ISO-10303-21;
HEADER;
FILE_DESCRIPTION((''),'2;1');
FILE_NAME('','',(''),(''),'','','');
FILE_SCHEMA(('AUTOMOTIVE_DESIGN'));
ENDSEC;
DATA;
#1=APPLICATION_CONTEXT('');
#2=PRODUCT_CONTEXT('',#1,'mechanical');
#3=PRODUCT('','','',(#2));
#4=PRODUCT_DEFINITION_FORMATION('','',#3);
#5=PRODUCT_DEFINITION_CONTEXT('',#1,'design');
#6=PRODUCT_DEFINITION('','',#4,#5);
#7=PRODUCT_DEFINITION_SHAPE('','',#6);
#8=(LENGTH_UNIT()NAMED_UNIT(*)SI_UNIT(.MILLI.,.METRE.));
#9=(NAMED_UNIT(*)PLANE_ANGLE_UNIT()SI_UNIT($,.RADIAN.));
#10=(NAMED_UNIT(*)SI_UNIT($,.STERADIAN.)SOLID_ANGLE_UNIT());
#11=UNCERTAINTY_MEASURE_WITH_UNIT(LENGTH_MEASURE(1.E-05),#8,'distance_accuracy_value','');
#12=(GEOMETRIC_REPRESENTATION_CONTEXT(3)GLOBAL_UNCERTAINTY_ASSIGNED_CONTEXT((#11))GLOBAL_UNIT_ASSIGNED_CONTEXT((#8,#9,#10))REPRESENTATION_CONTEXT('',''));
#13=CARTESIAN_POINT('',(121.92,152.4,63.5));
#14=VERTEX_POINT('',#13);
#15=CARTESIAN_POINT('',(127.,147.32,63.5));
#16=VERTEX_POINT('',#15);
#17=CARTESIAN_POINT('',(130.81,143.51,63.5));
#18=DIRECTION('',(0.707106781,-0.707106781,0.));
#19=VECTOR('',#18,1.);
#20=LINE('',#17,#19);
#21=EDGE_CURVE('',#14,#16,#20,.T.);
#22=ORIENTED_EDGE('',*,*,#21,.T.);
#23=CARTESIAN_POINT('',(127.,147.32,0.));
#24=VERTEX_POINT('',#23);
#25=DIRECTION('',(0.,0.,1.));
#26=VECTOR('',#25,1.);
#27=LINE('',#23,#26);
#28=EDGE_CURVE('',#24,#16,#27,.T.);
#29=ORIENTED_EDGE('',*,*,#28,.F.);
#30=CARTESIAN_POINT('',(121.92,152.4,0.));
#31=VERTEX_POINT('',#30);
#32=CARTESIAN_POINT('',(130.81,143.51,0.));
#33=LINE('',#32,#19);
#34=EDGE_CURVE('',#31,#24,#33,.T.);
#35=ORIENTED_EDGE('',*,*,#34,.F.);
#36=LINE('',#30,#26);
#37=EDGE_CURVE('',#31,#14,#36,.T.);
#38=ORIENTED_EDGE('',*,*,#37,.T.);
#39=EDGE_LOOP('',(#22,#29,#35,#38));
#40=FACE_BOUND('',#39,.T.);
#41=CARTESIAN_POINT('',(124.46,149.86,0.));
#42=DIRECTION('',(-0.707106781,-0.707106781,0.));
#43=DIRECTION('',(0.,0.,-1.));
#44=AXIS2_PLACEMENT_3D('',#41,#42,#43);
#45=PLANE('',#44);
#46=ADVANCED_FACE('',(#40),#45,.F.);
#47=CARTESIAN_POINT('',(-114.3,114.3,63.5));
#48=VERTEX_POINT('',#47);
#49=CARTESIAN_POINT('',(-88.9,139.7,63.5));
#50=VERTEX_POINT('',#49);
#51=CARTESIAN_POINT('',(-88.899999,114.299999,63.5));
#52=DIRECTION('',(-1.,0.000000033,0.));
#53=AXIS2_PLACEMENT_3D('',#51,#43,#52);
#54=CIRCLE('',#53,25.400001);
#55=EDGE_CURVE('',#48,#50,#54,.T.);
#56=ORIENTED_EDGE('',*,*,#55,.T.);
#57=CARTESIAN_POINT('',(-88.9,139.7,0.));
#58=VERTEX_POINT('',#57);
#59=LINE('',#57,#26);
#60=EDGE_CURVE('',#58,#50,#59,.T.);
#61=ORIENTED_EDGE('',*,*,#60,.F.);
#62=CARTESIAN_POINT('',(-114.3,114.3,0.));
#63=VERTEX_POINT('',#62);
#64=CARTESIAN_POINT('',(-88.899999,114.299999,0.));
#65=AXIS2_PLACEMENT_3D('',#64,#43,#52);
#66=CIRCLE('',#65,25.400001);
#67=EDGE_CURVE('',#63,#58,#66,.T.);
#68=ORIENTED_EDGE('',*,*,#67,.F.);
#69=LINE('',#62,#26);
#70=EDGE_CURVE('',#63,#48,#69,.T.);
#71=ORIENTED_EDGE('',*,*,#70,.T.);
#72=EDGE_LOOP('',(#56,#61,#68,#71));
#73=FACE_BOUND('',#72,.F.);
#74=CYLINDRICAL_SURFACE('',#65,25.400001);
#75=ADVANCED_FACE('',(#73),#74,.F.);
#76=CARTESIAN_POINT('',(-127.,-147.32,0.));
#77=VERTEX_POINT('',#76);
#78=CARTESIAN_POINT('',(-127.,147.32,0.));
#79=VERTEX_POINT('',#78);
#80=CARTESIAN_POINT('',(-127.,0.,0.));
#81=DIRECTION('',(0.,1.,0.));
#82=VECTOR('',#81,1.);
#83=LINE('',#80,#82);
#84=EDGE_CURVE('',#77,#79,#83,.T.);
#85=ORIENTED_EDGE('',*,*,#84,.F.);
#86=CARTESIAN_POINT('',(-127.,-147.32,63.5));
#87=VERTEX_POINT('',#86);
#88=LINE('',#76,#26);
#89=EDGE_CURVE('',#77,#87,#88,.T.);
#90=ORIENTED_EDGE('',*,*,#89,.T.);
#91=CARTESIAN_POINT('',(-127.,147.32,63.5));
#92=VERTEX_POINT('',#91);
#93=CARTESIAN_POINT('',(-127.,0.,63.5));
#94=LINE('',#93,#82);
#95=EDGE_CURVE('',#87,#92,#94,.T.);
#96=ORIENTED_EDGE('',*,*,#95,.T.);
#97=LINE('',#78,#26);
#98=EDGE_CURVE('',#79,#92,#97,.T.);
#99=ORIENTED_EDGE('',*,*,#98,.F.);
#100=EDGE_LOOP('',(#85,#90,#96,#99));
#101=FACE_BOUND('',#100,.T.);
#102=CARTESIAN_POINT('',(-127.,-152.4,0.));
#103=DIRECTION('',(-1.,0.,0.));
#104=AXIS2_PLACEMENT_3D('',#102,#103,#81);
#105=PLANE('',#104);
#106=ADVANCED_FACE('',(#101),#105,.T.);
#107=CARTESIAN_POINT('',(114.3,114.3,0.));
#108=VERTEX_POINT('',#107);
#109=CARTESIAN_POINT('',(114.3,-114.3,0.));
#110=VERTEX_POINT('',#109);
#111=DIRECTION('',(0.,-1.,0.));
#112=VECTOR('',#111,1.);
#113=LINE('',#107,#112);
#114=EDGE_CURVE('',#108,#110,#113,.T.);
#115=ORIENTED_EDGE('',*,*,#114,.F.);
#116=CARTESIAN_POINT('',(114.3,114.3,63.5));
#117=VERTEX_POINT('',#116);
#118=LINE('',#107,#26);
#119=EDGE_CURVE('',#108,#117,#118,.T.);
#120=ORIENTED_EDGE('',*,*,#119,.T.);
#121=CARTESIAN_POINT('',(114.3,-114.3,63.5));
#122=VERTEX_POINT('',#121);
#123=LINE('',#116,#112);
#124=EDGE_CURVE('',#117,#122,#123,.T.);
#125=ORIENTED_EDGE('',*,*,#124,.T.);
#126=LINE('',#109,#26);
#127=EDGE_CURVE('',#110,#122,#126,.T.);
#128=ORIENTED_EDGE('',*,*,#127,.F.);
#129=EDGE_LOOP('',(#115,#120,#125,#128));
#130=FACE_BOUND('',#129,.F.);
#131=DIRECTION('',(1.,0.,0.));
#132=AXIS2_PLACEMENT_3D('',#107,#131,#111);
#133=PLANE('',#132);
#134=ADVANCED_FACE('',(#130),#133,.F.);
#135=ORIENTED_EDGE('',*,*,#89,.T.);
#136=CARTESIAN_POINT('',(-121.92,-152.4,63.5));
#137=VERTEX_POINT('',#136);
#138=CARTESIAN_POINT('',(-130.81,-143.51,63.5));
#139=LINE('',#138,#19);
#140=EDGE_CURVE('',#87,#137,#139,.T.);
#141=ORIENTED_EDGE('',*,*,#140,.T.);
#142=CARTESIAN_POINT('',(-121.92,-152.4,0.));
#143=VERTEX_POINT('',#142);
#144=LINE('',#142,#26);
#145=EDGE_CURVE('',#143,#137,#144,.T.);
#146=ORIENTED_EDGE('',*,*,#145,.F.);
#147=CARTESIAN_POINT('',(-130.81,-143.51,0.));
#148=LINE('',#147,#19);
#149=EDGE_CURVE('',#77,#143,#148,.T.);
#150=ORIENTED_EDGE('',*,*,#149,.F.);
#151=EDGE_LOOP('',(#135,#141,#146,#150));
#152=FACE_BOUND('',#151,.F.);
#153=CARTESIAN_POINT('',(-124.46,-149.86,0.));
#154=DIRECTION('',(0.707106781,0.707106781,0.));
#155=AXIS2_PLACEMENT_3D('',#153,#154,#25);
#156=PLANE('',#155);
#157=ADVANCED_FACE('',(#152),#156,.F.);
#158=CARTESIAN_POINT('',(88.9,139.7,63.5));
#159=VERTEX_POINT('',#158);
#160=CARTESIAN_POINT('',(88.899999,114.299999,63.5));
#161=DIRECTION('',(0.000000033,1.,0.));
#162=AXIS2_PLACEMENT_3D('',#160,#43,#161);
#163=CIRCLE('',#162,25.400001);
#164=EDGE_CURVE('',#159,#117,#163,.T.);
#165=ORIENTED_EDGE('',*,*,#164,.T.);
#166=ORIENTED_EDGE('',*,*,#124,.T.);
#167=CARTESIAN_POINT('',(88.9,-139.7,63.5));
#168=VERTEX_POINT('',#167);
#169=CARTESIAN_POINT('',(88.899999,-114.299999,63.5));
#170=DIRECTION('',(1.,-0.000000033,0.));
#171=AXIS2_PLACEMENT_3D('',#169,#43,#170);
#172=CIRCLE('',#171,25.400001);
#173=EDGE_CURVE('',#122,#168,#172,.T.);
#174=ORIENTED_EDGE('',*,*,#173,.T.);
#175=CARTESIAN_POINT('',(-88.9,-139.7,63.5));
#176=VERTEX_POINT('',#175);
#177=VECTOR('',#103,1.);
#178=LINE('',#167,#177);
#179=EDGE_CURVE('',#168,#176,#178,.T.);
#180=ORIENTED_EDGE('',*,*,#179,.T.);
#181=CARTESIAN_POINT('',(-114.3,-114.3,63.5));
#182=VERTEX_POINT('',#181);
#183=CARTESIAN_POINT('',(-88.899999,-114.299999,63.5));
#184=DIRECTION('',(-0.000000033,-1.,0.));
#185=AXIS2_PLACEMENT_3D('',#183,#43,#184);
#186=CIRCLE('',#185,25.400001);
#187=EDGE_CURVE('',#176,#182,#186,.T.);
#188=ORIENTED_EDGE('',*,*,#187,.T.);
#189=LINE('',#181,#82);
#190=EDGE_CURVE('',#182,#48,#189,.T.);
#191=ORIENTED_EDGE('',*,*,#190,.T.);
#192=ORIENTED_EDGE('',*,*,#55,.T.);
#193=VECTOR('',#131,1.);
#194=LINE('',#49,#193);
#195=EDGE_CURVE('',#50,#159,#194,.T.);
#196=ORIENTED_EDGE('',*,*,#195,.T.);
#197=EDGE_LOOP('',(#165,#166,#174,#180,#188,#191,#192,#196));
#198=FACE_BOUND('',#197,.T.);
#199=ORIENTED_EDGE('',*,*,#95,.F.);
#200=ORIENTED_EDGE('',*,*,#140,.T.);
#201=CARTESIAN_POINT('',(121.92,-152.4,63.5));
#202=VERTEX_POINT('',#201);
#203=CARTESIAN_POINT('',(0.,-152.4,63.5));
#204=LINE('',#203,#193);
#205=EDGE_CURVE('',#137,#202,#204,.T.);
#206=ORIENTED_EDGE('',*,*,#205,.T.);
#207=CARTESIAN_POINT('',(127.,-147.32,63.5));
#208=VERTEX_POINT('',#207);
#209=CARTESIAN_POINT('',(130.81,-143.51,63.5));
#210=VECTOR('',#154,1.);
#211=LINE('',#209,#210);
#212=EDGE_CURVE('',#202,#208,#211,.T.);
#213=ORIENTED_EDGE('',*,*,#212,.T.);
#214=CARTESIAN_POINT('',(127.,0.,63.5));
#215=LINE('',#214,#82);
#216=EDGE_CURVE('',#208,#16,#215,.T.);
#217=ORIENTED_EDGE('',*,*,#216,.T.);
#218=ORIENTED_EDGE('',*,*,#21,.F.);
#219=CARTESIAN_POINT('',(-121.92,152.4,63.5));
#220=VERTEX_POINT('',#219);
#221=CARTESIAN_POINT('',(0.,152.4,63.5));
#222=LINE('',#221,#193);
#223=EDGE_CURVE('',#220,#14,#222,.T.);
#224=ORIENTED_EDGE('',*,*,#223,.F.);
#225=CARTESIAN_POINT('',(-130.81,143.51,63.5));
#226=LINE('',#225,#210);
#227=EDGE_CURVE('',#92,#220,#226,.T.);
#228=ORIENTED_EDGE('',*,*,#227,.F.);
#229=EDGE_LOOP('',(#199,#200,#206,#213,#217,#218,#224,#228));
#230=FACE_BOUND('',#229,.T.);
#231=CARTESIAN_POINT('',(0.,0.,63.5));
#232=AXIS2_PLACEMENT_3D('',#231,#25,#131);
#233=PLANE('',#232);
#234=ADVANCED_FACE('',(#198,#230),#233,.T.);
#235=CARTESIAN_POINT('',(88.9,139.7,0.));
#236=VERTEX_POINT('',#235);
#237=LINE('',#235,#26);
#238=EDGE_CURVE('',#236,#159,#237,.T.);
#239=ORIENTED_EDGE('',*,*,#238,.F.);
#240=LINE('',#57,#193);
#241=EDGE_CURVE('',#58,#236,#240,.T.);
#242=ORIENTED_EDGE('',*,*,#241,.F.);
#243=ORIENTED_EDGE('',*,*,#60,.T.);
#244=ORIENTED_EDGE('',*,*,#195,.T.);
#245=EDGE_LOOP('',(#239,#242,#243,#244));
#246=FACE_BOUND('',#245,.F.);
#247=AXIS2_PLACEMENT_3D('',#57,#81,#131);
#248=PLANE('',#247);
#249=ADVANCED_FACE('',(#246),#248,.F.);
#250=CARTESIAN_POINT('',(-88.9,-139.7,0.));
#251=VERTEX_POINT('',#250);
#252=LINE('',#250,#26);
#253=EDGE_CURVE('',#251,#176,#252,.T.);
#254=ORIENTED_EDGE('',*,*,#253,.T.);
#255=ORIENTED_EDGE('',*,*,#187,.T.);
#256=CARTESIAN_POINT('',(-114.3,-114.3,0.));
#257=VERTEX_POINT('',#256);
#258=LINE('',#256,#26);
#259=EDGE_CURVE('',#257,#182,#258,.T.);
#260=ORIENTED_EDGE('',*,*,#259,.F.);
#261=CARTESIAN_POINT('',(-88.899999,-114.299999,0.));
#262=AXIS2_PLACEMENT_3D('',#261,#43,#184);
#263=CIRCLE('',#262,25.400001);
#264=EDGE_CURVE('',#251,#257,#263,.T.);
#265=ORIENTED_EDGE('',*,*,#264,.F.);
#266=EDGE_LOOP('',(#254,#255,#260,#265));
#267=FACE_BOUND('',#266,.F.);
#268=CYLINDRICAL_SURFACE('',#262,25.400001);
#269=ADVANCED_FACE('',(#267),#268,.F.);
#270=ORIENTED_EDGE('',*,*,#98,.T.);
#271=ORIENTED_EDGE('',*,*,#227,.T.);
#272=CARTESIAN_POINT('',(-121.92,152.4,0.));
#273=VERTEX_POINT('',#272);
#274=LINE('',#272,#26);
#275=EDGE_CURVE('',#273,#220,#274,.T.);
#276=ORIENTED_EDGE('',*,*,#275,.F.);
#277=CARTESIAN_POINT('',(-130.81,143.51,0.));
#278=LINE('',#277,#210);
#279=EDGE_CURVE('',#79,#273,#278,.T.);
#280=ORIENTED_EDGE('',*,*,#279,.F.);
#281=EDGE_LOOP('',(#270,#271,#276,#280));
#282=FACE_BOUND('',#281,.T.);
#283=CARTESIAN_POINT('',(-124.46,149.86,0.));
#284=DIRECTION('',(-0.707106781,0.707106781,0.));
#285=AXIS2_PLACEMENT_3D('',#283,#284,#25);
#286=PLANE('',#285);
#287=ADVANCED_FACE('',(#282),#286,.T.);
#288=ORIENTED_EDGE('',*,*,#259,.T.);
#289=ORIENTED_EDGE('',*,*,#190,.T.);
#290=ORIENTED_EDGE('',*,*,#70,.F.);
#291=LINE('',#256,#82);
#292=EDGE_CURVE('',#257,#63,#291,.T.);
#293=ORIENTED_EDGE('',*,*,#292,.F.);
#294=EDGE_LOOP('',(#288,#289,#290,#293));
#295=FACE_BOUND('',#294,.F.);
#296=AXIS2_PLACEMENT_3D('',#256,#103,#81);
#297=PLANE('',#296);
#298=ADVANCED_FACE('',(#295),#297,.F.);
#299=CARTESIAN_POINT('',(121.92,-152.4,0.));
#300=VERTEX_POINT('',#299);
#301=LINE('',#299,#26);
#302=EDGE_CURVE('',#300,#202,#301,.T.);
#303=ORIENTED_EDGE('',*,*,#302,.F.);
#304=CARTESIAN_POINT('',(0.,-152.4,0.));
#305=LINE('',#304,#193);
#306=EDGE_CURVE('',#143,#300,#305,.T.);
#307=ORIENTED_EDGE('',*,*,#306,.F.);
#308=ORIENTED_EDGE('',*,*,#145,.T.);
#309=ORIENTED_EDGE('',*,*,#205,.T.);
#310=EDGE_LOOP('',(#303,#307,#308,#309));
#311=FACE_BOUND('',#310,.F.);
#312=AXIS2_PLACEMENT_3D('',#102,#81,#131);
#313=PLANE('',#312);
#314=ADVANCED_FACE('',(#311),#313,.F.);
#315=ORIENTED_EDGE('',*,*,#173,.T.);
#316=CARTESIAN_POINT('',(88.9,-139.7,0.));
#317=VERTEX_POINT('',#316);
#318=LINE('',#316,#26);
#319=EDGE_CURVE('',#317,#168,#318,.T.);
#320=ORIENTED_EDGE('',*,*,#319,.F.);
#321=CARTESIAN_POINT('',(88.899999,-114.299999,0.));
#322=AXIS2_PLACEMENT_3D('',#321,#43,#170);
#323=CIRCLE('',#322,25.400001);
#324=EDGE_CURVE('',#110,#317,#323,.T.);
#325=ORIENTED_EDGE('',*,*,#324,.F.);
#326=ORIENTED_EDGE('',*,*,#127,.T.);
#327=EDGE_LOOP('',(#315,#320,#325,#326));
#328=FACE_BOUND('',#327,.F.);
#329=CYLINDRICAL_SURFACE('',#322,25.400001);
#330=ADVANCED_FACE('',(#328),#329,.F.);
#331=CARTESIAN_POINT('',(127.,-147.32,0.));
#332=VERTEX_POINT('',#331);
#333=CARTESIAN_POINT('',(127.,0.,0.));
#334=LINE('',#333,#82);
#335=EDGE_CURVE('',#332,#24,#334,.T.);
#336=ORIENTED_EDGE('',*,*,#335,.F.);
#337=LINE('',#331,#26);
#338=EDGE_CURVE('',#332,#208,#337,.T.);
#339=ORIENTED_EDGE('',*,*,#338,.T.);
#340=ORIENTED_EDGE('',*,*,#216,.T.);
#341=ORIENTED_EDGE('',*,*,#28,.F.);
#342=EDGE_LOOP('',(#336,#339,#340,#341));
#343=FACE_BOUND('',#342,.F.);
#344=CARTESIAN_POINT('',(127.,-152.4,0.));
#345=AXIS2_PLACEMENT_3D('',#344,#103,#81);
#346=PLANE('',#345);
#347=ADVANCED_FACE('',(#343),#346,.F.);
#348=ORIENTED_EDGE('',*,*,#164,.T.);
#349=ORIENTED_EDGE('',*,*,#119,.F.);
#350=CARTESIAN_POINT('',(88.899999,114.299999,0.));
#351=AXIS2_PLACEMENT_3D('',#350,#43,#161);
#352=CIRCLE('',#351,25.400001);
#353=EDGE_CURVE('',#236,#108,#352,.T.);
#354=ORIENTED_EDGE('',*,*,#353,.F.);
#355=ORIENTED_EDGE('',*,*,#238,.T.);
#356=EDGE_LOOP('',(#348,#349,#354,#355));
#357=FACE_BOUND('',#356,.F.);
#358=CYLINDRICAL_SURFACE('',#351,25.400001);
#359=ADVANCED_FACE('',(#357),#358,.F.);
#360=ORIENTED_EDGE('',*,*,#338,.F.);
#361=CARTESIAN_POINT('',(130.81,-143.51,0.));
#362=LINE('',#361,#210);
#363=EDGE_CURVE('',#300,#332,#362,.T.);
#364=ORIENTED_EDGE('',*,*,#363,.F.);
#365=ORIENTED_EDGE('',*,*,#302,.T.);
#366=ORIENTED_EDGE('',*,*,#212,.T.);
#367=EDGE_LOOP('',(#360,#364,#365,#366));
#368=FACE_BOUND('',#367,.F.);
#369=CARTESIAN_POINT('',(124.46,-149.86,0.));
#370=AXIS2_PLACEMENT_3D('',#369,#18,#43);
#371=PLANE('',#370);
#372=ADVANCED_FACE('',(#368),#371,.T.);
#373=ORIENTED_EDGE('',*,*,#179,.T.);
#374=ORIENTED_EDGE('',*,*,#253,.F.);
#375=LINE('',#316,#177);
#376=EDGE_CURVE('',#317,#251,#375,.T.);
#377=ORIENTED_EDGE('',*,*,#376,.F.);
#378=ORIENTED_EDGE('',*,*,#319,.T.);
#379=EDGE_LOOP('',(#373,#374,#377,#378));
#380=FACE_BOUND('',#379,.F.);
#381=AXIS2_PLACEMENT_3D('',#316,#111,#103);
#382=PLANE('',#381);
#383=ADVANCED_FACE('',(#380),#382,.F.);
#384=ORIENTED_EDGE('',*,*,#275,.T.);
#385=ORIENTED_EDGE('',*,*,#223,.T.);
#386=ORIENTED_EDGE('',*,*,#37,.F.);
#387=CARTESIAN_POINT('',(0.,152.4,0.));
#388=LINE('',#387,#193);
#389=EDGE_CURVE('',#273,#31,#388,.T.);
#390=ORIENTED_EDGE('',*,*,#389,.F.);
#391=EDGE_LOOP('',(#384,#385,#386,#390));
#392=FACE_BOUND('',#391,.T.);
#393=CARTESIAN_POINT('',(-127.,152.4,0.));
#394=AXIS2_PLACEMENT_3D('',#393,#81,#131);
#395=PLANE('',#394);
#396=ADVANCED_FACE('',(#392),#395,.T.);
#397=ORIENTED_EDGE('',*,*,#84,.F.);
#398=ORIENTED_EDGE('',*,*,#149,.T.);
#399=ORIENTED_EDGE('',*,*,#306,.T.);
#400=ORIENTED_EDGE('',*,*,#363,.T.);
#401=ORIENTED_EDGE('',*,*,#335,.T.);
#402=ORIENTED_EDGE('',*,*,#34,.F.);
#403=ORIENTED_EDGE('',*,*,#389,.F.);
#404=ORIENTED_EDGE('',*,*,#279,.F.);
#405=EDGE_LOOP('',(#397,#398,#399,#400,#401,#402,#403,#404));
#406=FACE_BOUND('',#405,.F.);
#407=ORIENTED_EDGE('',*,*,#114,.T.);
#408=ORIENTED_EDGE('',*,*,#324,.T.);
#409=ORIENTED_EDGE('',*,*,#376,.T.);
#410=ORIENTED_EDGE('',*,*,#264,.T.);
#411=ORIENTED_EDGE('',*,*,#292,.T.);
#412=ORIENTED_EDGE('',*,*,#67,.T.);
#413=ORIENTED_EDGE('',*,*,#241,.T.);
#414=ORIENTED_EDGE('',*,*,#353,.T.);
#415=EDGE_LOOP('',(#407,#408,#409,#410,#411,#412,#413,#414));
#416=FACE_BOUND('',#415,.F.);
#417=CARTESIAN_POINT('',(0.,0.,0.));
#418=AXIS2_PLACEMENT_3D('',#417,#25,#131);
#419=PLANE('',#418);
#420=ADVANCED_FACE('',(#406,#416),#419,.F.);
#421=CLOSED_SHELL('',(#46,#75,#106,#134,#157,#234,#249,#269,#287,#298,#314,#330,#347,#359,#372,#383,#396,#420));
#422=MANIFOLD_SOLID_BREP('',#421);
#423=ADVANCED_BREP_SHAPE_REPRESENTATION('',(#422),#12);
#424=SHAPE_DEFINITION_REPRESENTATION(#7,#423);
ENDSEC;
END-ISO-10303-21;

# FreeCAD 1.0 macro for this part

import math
import FreeCAD as App
import Part
import Sketcher
Q = App.Units.Quantity


def edges_at(feature, points):
    """Names of the edges that pass closest to the given points."""
    edges = feature.Shape.Edges
    near = lambda p: min(range(len(edges)), key=lambda i: edges[i].distToShape(Part.Vertex(*p))[0])
    return sorted({f"Edge{near(p) + 1}" for p in points})


def add_polygon(sketch, points):
    """Adds a closed chain of lines whose ends are joined by coincident constraints."""
    first, n = sketch.GeometryCount, len(points)
    for a, b in zip(points, points[1:] + points[:1]):
        sketch.addGeometry(Part.LineSegment(App.Vector(*a, 0), App.Vector(*b, 0)), False)
    for i in range(n):
        sketch.addConstraint(Sketcher.Constraint("Coincident", first + i, 2, first + (i + 1) % n, 1))

doc = App.newDocument("Part")
body = doc.addObject("PartDesign::Body", "Body")

# Sketch on XY plane
sketch1 = doc.addObject("Sketcher::SketchObject", "Sketch")
body.addObject(sketch1)
sketch1.AttachmentSupport = (doc.XY_Plane, [""])
sketch1.MapMode = "FlatFace"
add_polygon(sketch1, [(-127, 152.4), (-127, -152.4), (127, -152.4), (127, 152.4)])  # lines 0-3
sketch1.addGeometry(Part.LineSegment(App.Vector(-114.3, -114.3, 0), App.Vector(-114.3, 114.3, 0)), False)  # 4
sketch1.addGeometry(Part.ArcOfCircle(Part.Circle(App.Vector(-88.899999, 114.299999, 0), App.Vector(0, 0, 1), 25.400001), math.radians(90.000002), math.radians(179.999998)), False)  # 5
sketch1.addGeometry(Part.LineSegment(App.Vector(-88.9, 139.7, 0), App.Vector(88.9, 139.7, 0)), False)  # 6
sketch1.addGeometry(Part.ArcOfCircle(Part.Circle(App.Vector(88.899999, 114.299999, 0), App.Vector(0, 0, 1), 25.400001), math.radians(0.000002), math.radians(89.999998)), False)  # 7
sketch1.addGeometry(Part.LineSegment(App.Vector(114.3, 114.3, 0), App.Vector(114.3, -114.3, 0)), False)  # 8
sketch1.addGeometry(Part.ArcOfCircle(Part.Circle(App.Vector(88.899999, -114.299999, 0), App.Vector(0, 0, 1), 25.400001), math.radians(-89.999998), math.radians(-0.000002)), False)  # 9
sketch1.addGeometry(Part.LineSegment(App.Vector(88.9, -139.7, 0), App.Vector(-88.9, -139.7, 0)), False)  # 10
sketch1.addGeometry(Part.ArcOfCircle(Part.Circle(App.Vector(-88.899999, -114.299999, 0), App.Vector(0, 0, 1), 25.400001), math.radians(-179.999998), math.radians(-90.000002)), False)  # 11
sketch1.addConstraint([
    Sketcher.Constraint("Tangent", 4, 2, 5, 2),
    Sketcher.Constraint("Tangent", 5, 1, 6, 1),
    Sketcher.Constraint("Tangent", 6, 2, 7, 2),
    Sketcher.Constraint("Tangent", 7, 1, 8, 1),
    Sketcher.Constraint("Tangent", 8, 2, 9, 2),
    Sketcher.Constraint("Tangent", 9, 1, 10, 1),
    Sketcher.Constraint("Tangent", 10, 2, 11, 2),
    Sketcher.Constraint("Tangent", 11, 1, 4, 1),
    Sketcher.Constraint("Vertical", 0),
    Sketcher.Constraint("Horizontal", 1),
    Sketcher.Constraint("Vertical", 2),
    Sketcher.Constraint("Horizontal", 3),
    Sketcher.Constraint("Vertical", 4),
    Sketcher.Constraint("Horizontal", 6),
    Sketcher.Constraint("Vertical", 8),
    Sketcher.Constraint("Horizontal", 10),
    Sketcher.Constraint("Equal", 5, 7),
    Sketcher.Constraint("Equal", 7, 9),
    Sketcher.Constraint("Equal", 9, 11),
    Sketcher.Constraint("Symmetric", 5, 3, 9, 3, -1, 1),
    Sketcher.Constraint("Symmetric", 0, 2, 2, 2, -1, 1),
    Sketcher.Constraint("Radius", 5, Q("1 in")),
    Sketcher.Constraint("DistanceX", 1, 1, 1, 2, Q("10 in")),
    Sketcher.Constraint("DistanceX", 6, 1, 6, 2, Q("7 in")),
    Sketcher.Constraint("DistanceY", 0, 2, 0, 1, Q("12 in")),
    Sketcher.Constraint("DistanceY", 4, 1, 4, 2, Q("9 in")),
])
pad1 = doc.addObject("PartDesign::Pad", "Pad")
body.addObject(pad1)
pad1.Profile = sketch1
pad1.Length = Q("2.5 in")
doc.recompute()

chamfer = doc.addObject("PartDesign::Chamfer", "Chamfer")
body.addObject(chamfer)
chamfer.Base = (pad1, edges_at(pad1, [
    (-127, 152.4, 31.75),
    (127, 152.4, 31.75),
    (127, -152.4, 31.75),
    (-127, -152.4, 31.75),
]))
chamfer.Size = Q("0.2 in")

doc.recompute()
